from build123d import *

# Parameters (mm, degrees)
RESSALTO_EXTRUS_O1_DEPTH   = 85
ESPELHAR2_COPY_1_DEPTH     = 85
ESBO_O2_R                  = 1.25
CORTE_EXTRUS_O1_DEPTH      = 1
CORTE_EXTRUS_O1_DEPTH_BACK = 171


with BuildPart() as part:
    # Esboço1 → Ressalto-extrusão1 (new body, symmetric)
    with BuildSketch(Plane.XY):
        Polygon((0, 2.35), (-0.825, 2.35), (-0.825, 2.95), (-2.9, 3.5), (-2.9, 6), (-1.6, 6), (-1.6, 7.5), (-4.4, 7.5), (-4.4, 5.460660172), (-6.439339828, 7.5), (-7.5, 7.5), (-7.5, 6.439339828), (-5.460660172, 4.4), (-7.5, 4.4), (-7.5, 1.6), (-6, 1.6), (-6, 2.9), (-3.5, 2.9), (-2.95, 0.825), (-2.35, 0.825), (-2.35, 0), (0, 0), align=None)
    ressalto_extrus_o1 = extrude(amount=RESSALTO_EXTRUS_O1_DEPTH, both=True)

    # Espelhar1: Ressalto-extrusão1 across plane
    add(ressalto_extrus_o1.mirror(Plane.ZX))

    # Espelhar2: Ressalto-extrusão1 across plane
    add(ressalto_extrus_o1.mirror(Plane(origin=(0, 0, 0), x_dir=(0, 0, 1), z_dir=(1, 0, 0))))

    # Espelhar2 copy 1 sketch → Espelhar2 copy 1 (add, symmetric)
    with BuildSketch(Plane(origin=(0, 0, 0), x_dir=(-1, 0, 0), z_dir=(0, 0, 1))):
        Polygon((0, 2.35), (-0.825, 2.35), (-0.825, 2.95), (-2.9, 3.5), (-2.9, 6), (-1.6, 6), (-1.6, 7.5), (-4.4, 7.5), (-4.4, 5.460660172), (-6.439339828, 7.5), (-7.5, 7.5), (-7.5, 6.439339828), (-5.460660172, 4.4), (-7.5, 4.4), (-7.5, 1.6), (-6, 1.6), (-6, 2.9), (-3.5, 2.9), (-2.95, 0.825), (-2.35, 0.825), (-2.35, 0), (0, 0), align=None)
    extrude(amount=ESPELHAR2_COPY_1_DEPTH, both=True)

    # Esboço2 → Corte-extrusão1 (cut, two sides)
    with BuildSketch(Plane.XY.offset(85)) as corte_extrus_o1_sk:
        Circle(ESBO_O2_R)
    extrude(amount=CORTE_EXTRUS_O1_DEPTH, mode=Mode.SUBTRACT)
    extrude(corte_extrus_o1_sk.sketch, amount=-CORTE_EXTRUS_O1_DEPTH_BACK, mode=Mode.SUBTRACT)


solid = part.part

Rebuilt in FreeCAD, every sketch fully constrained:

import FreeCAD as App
import Part
import Sketcher

V = App.Vector
Q = App.Units.Quantity

doc = App.newDocument("Part")
body = doc.addObject("PartDesign::Body", "Body")

# Sketch on XY plane
sketch1 = body.newObject("Sketcher::SketchObject", "Sketch")
sketch1.AttachmentSupport = (doc.getObject("XY_Plane"), [""])
sketch1.MapMode = "FlatFace"
sketch1.addGeometry([
    Part.LineSegment(V(0, 2.4, 0), V(-0.8, 2.4, 0)),  # 0
    Part.LineSegment(V(-0.8, 2.4, 0), V(-0.8, 3, 0)),  # 1
    Part.LineSegment(V(-0.8, 3, 0), V(-2.9, 3.5, 0)),  # 2
    Part.LineSegment(V(-2.9, 3.5, 0), V(-2.9, 6, 0)),  # 3
    Part.LineSegment(V(-2.9, 6, 0), V(-1.6, 6, 0)),  # 4
    Part.LineSegment(V(-1.6, 6, 0), V(-1.6, 7.5, 0)),  # 5
    Part.LineSegment(V(-1.6, 7.5, 0), V(-4.4, 7.5, 0)),  # 6
    Part.LineSegment(V(-4.4, 7.5, 0), V(-4.4, 5.5, 0)),  # 7
    Part.LineSegment(V(-4.4, 5.5, 0), V(-6.4, 7.5, 0)),  # 8
    Part.LineSegment(V(-6.4, 7.5, 0), V(-7.5, 7.5, 0)),  # 9
    Part.LineSegment(V(-7.5, 7.5, 0), V(-7.5, 6.4, 0)),  # 10
    Part.LineSegment(V(-7.5, 6.4, 0), V(-5.5, 4.4, 0)),  # 11
    Part.LineSegment(V(-5.5, 4.4, 0), V(-7.5, 4.4, 0)),  # 12
    Part.LineSegment(V(-7.5, 4.4, 0), V(-7.5, 1.6, 0)),  # 13
    Part.LineSegment(V(-7.5, 1.6, 0), V(-6, 1.6, 0)),  # 14
    Part.LineSegment(V(-6, 1.6, 0), V(-6, 2.9, 0)),  # 15
    Part.LineSegment(V(-6, 2.9, 0), V(-3.5, 2.9, 0)),  # 16
    Part.LineSegment(V(-3.5, 2.9, 0), V(-3, 0.8, 0)),  # 17
    Part.LineSegment(V(-3, 0.8, 0), V(-2.4, 0.8, 0)),  # 18
    Part.LineSegment(V(-2.4, 0.8, 0), V(-2.4, 0, 0)),  # 19
    Part.LineSegment(V(-2.4, 0, 0), V(0, 0, 0)),  # 20
    Part.LineSegment(V(0, 0, 0), V(0, 2.4, 0)),  # 21
], False)
sketch1.addConstraint([
    Sketcher.Constraint("Coincident", 0, 2, 1, 1),
    Sketcher.Constraint("Coincident", 1, 2, 2, 1),
    Sketcher.Constraint("Coincident", 2, 2, 3, 1),
    Sketcher.Constraint("Coincident", 3, 2, 4, 1),
    Sketcher.Constraint("Coincident", 4, 2, 5, 1),
    Sketcher.Constraint("Coincident", 5, 2, 6, 1),
    Sketcher.Constraint("Coincident", 6, 2, 7, 1),
    Sketcher.Constraint("Coincident", 7, 2, 8, 1),
    Sketcher.Constraint("Coincident", 8, 2, 9, 1),
    Sketcher.Constraint("Coincident", 9, 2, 10, 1),
    Sketcher.Constraint("Coincident", 10, 2, 11, 1),
    Sketcher.Constraint("Coincident", 11, 2, 12, 1),
    Sketcher.Constraint("Coincident", 12, 2, 13, 1),
    Sketcher.Constraint("Coincident", 13, 2, 14, 1),
    Sketcher.Constraint("Coincident", 14, 2, 15, 1),
    Sketcher.Constraint("Coincident", 15, 2, 16, 1),
    Sketcher.Constraint("Coincident", 16, 2, 17, 1),
    Sketcher.Constraint("Coincident", 17, 2, 18, 1),
    Sketcher.Constraint("Coincident", 18, 2, 19, 1),
    Sketcher.Constraint("Coincident", 19, 2, 20, 1),
    Sketcher.Constraint("Coincident", 20, 2, 21, 1),
    Sketcher.Constraint("Coincident", 21, 2, 0, 1),
    Sketcher.Constraint("Horizontal", 0),
    Sketcher.Constraint("Vertical", 1),
    Sketcher.Constraint("Vertical", 3),
    Sketcher.Constraint("Horizontal", 4),
    Sketcher.Constraint("Vertical", 5),
    Sketcher.Constraint("Horizontal", 6),
    Sketcher.Constraint("Vertical", 7),
    Sketcher.Constraint("Horizontal", 9),
    Sketcher.Constraint("Vertical", 10),
    Sketcher.Constraint("Horizontal", 12),
    Sketcher.Constraint("Vertical", 13),
    Sketcher.Constraint("Horizontal", 14),
    Sketcher.Constraint("Vertical", 15),
    Sketcher.Constraint("Horizontal", 16),
    Sketcher.Constraint("Horizontal", 18),
    Sketcher.Constraint("Vertical", 19),
    Sketcher.Constraint("Horizontal", 20),
    Sketcher.Constraint("Vertical", 21),
    Sketcher.Constraint("Coincident", 20, 2, -1, 1),
    Sketcher.Constraint("Parallel", 8, 11),
    Sketcher.Constraint("Horizontal", 6, 2, 8, 2),
    Sketcher.Constraint("Vertical", 10, 2, 12, 2),
    Sketcher.Constraint("Equal", 18, 1),
    Sketcher.Constraint("Equal", 16, 3),
    Sketcher.Constraint("Equal", 14, 5),
    Sketcher.Constraint("Equal", 12, 7),
    Sketcher.Constraint("Equal", 9, 10),
    Sketcher.Constraint("Equal", 6, 13),
    Sketcher.Constraint("Equal", 4, 15),
    Sketcher.Constraint("Equal", 0, 19),
    Sketcher.Constraint("Equal", 20, 21),
    Sketcher.Constraint("Equal", 8, 11),
    Sketcher.Constraint("Equal", 2, 17),
    Sketcher.Constraint("DistanceX", 4, 1, 4, 2, Q("1.3 mm")),
    Sketcher.Constraint("DistanceX", 6, 2, 6, 1, Q("2.8 mm")),
    Sketcher.Constraint("DistanceX", 14, 1, 14, 2, Q("1.5 mm")),
    Sketcher.Constraint("DistanceX", 16, 1, 16, 2, Q("2.5 mm")),
    Sketcher.Constraint("DistanceX", 18, 1, 18, 2, Q("0.6 mm")),
    Sketcher.Constraint("DistanceY", -1, 1, 3, 2, Q("6 mm")),
    Sketcher.Constraint("DistanceX", 20, 1, 20, 2, Q("2.35 mm")),
    Sketcher.Constraint("DistanceX", 2, 2, -1, 1, Q("2.9 mm")),
    Sketcher.Constraint("DistanceX", 0, 2, 0, 1, Q("0.825 mm")),
    Sketcher.Constraint("DistanceX", 9, 2, 9, 1, Q("1.06066 mm")),
])
pad1 = body.newObject("PartDesign::Pad", "Pad")
pad1.Profile = sketch1
pad1.Length = 170
pad1.Midplane = True
doc.recompute()

mirrored = body.newObject("PartDesign::Mirrored", "Mirrored")
mirrored.Originals = [pad1]
mirrored.MirrorPlane = (doc.getObject("XZ_Plane"), [""])
body.Tip = mirrored
doc.recompute()

mirrored2 = body.newObject("PartDesign::Mirrored", "Mirrored001")
mirrored2.Originals = [pad1]
mirrored2.MirrorPlane = (doc.getObject("YZ_Plane"), [""])
body.Tip = mirrored2

# Sketch on XY plane
sketch2 = body.newObject("Sketcher::SketchObject", "Sketch001")
sketch2.AttachmentSupport = (doc.getObject("XY_Plane"), [""])
sketch2.MapMode = "FlatFace"
sketch2.addGeometry([
    Part.LineSegment(V(0, -2.4, 0), V(0.8, -2.4, 0)),  # 0
    Part.LineSegment(V(0.8, -2.4, 0), V(0.8, -3, 0)),  # 1
    Part.LineSegment(V(0.8, -3, 0), V(2.9, -3.5, 0)),  # 2
    Part.LineSegment(V(2.9, -3.5, 0), V(2.9, -6, 0)),  # 3
    Part.LineSegment(V(2.9, -6, 0), V(1.6, -6, 0)),  # 4
    Part.LineSegment(V(1.6, -6, 0), V(1.6, -7.5, 0)),  # 5
    Part.LineSegment(V(1.6, -7.5, 0), V(4.4, -7.5, 0)),  # 6
    Part.LineSegment(V(4.4, -7.5, 0), V(4.4, -5.5, 0)),  # 7
    Part.LineSegment(V(4.4, -5.5, 0), V(6.4, -7.5, 0)),  # 8
    Part.LineSegment(V(6.4, -7.5, 0), V(7.5, -7.5, 0)),  # 9
    Part.LineSegment(V(7.5, -7.5, 0), V(7.5, -6.4, 0)),  # 10
    Part.LineSegment(V(7.5, -6.4, 0), V(5.5, -4.4, 0)),  # 11
    Part.LineSegment(V(5.5, -4.4, 0), V(7.5, -4.4, 0)),  # 12
    Part.LineSegment(V(7.5, -4.4, 0), V(7.5, -1.6, 0)),  # 13
    Part.LineSegment(V(7.5, -1.6, 0), V(6, -1.6, 0)),  # 14
    Part.LineSegment(V(6, -1.6, 0), V(6, -2.9, 0)),  # 15
    Part.LineSegment(V(6, -2.9, 0), V(3.5, -2.9, 0)),  # 16
    Part.LineSegment(V(3.5, -2.9, 0), V(3, -0.8, 0)),  # 17
    Part.LineSegment(V(3, -0.8, 0), V(2.4, -0.8, 0)),  # 18
    Part.LineSegment(V(2.4, -0.8, 0), V(2.4, 0, 0)),  # 19
    Part.LineSegment(V(2.4, 0, 0), V(0, 0, 0)),  # 20
    Part.LineSegment(V(0, 0, 0), V(0, -2.4, 0)),  # 21
], False)
sketch2.addConstraint([
    Sketcher.Constraint("Coincident", 0, 2, 1, 1),
    Sketcher.Constraint("Coincident", 1, 2, 2, 1),
    Sketcher.Constraint("Coincident", 2, 2, 3, 1),
    Sketcher.Constraint("Coincident", 3, 2, 4, 1),
    Sketcher.Constraint("Coincident", 4, 2, 5, 1),
    Sketcher.Constraint("Coincident", 5, 2, 6, 1),
    Sketcher.Constraint("Coincident", 6, 2, 7, 1),
    Sketcher.Constraint("Coincident", 7, 2, 8, 1),
    Sketcher.Constraint("Coincident", 8, 2, 9, 1),
    Sketcher.Constraint("Coincident", 9, 2, 10, 1),
    Sketcher.Constraint("Coincident", 10, 2, 11, 1),
    Sketcher.Constraint("Coincident", 11, 2, 12, 1),
    Sketcher.Constraint("Coincident", 12, 2, 13, 1),
    Sketcher.Constraint("Coincident", 13, 2, 14, 1),
    Sketcher.Constraint("Coincident", 14, 2, 15, 1),
    Sketcher.Constraint("Coincident", 15, 2, 16, 1),
    Sketcher.Constraint("Coincident", 16, 2, 17, 1),
    Sketcher.Constraint("Coincident", 17, 2, 18, 1),
    Sketcher.Constraint("Coincident", 18, 2, 19, 1),
    Sketcher.Constraint("Coincident", 19, 2, 20, 1),
    Sketcher.Constraint("Coincident", 20, 2, 21, 1),
    Sketcher.Constraint("Coincident", 21, 2, 0, 1),
    Sketcher.Constraint("Horizontal", 0),
    Sketcher.Constraint("Vertical", 1),
    Sketcher.Constraint("Vertical", 3),
    Sketcher.Constraint("Horizontal", 4),
    Sketcher.Constraint("Vertical", 5),
    Sketcher.Constraint("Horizontal", 6),
    Sketcher.Constraint("Vertical", 7),
    Sketcher.Constraint("Horizontal", 9),
    Sketcher.Constraint("Vertical", 10),
    Sketcher.Constraint("Horizontal", 12),
    Sketcher.Constraint("Vertical", 13),
    Sketcher.Constraint("Horizontal", 14),
    Sketcher.Constraint("Vertical", 15),
    Sketcher.Constraint("Horizontal", 16),
    Sketcher.Constraint("Horizontal", 18),
    Sketcher.Constraint("Vertical", 19),
    Sketcher.Constraint("Horizontal", 20),
    Sketcher.Constraint("Vertical", 21),
    Sketcher.Constraint("Coincident", 20, 2, -1, 1),
    Sketcher.Constraint("Parallel", 8, 11),
    Sketcher.Constraint("Horizontal", 6, 2, 8, 2),
    Sketcher.Constraint("Vertical", 10, 2, 12, 2),
    Sketcher.Constraint("Equal", 18, 1),
    Sketcher.Constraint("Equal", 16, 3),
    Sketcher.Constraint("Equal", 14, 5),
    Sketcher.Constraint("Equal", 12, 7),
    Sketcher.Constraint("Equal", 9, 10),
    Sketcher.Constraint("Equal", 6, 13),
    Sketcher.Constraint("Equal", 4, 15),
    Sketcher.Constraint("Equal", 0, 19),
    Sketcher.Constraint("Equal", 20, 21),
    Sketcher.Constraint("Equal", 8, 11),
    Sketcher.Constraint("Equal", 2, 17),
    Sketcher.Constraint("DistanceX", 4, 2, 4, 1, Q("1.3 mm")),
    Sketcher.Constraint("DistanceX", 6, 1, 6, 2, Q("2.8 mm")),
    Sketcher.Constraint("DistanceX", 14, 2, 14, 1, Q("1.5 mm")),
    Sketcher.Constraint("DistanceX", 16, 2, 16, 1, Q("2.5 mm")),
    Sketcher.Constraint("DistanceX", 18, 2, 18, 1, Q("0.6 mm")),
    Sketcher.Constraint("DistanceY", 3, 2, -1, 1, Q("6 mm")),
    Sketcher.Constraint("DistanceX", 20, 2, 20, 1, Q("2.35 mm")),
    Sketcher.Constraint("DistanceX", -1, 1, 2, 2, Q("2.9 mm")),
    Sketcher.Constraint("DistanceX", 0, 1, 0, 2, Q("0.825 mm")),
    Sketcher.Constraint("DistanceX", 9, 1, 9, 2, Q("1.06066 mm")),
])
pad2 = body.newObject("PartDesign::Pad", "Pad001")
pad2.Profile = sketch2
pad2.Length = 170
pad2.Midplane = True

# Sketch on XY plane
sketch3 = body.newObject("Sketcher::SketchObject", "Sketch002")
sketch3.AttachmentSupport = (doc.getObject("XY_Plane"), [""])
sketch3.MapMode = "FlatFace"
sketch3.AttachmentOffset = App.Placement(V(0, 0, 85), App.Rotation())
sketch3.addGeometry(Part.Circle(V(0, 0, 0), V(0, 0, 1), 1.2), False)
sketch3.addConstraint([
    Sketcher.Constraint("Coincident", 0, 3, -1, 1),
    Sketcher.Constraint("Diameter", 0, Q("2.5 mm")),
])
pocket1 = body.newObject("PartDesign::Pocket", "Pocket")
pocket1.Profile = sketch3
pocket1.Type = "ThroughAll"
pocket1.Midplane = True

doc.recompute()
